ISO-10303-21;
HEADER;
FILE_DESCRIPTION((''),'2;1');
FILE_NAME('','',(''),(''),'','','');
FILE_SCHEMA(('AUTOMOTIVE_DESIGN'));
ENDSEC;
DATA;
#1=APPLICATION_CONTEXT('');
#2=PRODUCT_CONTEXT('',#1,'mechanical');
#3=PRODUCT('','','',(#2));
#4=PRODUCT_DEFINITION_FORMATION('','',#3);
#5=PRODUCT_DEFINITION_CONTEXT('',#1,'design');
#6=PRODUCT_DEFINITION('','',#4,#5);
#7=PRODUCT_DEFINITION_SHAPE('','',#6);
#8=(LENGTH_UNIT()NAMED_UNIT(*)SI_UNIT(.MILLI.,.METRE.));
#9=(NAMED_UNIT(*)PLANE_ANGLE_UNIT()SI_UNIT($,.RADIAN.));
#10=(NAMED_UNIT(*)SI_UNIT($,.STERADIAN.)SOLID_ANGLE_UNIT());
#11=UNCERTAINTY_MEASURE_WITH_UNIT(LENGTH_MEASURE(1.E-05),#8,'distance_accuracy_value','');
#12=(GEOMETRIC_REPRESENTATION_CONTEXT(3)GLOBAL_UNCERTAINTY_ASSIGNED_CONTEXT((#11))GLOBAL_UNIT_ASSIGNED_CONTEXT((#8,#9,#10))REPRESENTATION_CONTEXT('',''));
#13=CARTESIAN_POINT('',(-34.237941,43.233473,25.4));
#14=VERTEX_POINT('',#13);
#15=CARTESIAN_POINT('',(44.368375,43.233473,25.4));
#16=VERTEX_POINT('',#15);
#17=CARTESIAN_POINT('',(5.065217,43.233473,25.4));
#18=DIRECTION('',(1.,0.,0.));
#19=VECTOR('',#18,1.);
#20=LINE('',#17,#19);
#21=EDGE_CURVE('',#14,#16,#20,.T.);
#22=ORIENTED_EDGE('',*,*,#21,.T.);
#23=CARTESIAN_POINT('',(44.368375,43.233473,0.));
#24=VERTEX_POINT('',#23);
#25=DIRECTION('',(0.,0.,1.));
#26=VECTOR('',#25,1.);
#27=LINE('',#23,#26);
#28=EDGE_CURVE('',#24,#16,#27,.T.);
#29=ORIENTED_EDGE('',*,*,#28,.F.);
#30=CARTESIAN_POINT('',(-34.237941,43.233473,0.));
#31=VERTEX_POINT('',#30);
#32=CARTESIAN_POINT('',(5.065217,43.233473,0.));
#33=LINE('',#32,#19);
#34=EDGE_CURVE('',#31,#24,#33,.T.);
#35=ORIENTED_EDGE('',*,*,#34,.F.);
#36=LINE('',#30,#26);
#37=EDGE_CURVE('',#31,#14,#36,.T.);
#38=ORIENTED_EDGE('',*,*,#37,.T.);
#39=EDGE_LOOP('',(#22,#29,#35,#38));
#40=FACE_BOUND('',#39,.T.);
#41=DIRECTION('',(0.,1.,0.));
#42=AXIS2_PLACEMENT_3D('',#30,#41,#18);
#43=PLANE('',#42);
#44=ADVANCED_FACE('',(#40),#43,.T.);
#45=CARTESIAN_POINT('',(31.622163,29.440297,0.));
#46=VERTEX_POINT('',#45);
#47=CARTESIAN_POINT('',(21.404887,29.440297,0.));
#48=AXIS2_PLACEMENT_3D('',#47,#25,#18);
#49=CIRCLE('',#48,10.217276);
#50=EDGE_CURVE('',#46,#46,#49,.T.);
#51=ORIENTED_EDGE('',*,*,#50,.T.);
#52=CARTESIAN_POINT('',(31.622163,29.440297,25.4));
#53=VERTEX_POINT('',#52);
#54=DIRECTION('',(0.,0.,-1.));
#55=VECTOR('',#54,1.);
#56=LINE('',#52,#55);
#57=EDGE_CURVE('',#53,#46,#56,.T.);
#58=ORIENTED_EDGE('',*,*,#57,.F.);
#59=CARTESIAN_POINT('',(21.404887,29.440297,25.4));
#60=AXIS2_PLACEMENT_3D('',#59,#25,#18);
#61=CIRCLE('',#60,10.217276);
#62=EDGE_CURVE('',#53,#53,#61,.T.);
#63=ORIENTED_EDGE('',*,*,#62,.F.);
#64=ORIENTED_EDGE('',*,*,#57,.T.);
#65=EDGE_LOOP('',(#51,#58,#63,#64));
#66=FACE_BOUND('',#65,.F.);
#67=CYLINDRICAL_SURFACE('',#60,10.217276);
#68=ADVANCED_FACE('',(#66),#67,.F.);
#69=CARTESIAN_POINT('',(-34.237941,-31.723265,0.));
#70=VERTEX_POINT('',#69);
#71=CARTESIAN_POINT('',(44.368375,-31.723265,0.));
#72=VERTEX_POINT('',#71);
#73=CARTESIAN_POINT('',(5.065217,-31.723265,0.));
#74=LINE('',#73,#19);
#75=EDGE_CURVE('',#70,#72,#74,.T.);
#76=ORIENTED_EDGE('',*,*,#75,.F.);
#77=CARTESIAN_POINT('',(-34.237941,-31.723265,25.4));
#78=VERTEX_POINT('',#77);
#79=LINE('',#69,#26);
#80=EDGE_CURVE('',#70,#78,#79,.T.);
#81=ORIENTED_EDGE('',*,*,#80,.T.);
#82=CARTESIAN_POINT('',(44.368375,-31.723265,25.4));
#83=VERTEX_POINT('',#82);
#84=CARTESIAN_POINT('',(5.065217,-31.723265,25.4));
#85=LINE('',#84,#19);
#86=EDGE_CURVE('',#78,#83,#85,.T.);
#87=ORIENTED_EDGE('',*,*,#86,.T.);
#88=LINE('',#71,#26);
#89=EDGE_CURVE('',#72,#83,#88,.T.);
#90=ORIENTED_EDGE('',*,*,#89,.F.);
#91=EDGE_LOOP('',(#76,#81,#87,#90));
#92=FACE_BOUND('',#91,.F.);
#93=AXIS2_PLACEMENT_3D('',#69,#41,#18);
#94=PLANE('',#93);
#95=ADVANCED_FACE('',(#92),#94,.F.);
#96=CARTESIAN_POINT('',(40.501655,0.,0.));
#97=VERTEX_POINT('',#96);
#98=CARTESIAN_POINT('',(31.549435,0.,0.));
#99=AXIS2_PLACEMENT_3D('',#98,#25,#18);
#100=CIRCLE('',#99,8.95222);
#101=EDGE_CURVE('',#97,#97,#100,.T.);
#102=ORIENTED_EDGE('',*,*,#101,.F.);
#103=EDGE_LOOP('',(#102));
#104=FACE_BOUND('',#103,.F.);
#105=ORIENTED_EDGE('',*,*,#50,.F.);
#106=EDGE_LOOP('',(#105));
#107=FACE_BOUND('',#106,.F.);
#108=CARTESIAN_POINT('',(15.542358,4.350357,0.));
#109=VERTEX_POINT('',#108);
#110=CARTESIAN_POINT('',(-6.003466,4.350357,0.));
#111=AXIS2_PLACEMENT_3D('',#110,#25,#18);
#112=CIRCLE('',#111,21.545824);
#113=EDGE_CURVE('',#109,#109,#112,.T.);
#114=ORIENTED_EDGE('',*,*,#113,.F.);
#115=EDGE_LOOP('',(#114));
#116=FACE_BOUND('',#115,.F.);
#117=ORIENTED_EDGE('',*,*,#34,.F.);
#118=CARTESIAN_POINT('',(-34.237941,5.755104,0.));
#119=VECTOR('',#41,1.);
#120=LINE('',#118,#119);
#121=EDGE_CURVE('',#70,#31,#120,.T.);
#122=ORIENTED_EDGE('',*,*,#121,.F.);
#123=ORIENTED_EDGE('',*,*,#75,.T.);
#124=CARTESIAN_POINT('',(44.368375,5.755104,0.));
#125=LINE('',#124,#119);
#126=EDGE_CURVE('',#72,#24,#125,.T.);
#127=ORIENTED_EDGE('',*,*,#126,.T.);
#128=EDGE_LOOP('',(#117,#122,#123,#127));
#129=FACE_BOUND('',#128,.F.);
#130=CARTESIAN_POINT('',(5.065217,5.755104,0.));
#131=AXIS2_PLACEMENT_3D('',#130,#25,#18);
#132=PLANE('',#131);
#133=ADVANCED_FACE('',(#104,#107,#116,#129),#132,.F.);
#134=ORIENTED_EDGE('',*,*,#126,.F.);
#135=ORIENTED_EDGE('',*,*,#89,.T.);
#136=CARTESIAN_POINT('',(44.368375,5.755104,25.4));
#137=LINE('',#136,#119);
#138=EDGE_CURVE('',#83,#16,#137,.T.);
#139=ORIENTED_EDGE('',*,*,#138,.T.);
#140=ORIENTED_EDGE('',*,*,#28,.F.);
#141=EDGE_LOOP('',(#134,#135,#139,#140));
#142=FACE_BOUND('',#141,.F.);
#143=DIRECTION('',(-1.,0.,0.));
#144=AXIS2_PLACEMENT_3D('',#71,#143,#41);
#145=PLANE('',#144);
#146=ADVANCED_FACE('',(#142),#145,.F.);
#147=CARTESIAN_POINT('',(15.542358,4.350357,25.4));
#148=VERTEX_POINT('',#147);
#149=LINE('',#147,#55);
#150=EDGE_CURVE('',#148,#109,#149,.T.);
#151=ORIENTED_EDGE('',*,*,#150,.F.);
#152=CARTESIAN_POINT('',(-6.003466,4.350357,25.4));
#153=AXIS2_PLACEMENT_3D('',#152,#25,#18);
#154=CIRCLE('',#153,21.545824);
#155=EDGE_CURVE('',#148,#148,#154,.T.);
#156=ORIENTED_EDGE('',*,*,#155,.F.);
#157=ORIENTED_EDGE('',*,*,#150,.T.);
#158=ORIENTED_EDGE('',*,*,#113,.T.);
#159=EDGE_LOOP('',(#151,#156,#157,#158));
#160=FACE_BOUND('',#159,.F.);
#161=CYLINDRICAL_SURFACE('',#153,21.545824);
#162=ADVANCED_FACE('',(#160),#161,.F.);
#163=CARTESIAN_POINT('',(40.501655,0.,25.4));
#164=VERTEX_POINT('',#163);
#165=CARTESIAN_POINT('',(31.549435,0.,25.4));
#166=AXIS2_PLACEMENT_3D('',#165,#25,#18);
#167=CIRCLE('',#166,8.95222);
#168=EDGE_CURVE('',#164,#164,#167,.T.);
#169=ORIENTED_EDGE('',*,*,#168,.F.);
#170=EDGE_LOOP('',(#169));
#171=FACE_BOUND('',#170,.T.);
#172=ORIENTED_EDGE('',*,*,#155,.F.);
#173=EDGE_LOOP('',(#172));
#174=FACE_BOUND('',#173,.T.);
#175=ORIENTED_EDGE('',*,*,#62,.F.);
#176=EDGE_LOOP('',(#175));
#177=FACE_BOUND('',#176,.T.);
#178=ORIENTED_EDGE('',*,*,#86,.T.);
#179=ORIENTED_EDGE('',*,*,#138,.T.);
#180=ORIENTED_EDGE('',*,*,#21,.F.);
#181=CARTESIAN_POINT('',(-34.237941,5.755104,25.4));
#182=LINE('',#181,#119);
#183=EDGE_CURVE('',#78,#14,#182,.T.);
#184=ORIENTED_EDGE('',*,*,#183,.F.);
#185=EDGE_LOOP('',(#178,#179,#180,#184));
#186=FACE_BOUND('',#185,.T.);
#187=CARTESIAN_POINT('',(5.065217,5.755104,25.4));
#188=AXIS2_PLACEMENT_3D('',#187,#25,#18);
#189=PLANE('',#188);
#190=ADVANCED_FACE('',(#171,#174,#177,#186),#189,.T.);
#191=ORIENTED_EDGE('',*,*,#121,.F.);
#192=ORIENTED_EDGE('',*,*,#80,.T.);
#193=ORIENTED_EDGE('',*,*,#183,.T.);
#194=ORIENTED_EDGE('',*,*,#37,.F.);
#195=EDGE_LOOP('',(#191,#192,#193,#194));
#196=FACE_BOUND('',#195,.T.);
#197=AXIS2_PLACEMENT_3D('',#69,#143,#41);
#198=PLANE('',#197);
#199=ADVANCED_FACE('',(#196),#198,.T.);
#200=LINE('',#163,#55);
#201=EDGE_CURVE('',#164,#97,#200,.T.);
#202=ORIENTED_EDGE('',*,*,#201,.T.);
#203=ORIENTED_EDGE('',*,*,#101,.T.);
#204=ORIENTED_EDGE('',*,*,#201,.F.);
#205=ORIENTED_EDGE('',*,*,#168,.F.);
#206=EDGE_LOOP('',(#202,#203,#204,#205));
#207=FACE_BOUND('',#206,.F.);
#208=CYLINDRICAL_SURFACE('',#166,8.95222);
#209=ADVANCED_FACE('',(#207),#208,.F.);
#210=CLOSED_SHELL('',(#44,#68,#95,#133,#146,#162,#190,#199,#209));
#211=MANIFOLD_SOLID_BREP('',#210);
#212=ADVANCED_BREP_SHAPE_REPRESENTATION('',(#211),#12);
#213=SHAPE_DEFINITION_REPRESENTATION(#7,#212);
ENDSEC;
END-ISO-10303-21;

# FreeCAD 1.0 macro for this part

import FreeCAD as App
import Part
import Sketcher
Q = App.Units.Quantity

doc = App.newDocument("Part")
body = doc.addObject("PartDesign::Body", "Body")

# Sketch on XY plane
sketch1 = body.newObject("Sketcher::SketchObject", "Sketch")
sketch1.AttachmentSupport = (doc.getObject("XY_Plane"), [""])
sketch1.MapMode = "FlatFace"
sketch1.addGeometry([
    Part.LineSegment(App.Vector(-34, 43, 0), App.Vector(-34, -32, 0)),
    Part.LineSegment(App.Vector(-34, -32, 0), App.Vector(44, -32, 0)),
    Part.LineSegment(App.Vector(44, -32, 0), App.Vector(44, 43, 0)),
    Part.LineSegment(App.Vector(44, 43, 0), App.Vector(-34, 43, 0)),
], False)
sketch1.addConstraint([
    Sketcher.Constraint("Coincident", 0, 2, 1, 1),
    Sketcher.Constraint("Coincident", 1, 2, 2, 1),
    Sketcher.Constraint("Coincident", 2, 2, 3, 1),
    Sketcher.Constraint("Coincident", 3, 2, 0, 1),
    Sketcher.Constraint("Vertical", 0),
    Sketcher.Constraint("Horizontal", 1),
    Sketcher.Constraint("Vertical", 2),
    Sketcher.Constraint("Horizontal", 3),
    Sketcher.Constraint("DistanceY", 0, 2, 0, 1, Q("74.956738 mm")),
    Sketcher.Constraint("DistanceX", 1, 1, 1, 2, Q("78.606315 mm")),
    Sketcher.Constraint("DistanceX", 0, 2, -1, 1, Q("34.237941 mm")),
    Sketcher.Constraint("DistanceY", 0, 2, -1, 1, Q("31.723265 mm")),
])
pad1 = body.newObject("PartDesign::Pad", "Pad")
pad1.Profile = sketch1
pad1.Length = Q("1 in")

# Sketch on XY plane
sketch2 = body.newObject("Sketcher::SketchObject", "Sketch001")
sketch2.AttachmentSupport = (doc.getObject("XY_Plane"), [""])
sketch2.MapMode = "FlatFace"
sketch2.AttachmentOffset = App.Placement(App.Vector(0, 0, 1 * 25.4), App.Rotation())
sketch2.addGeometry([
    Part.Circle(App.Vector(-6, 4, 0), App.Vector(0, 0, 1), 22),
    Part.Circle(App.Vector(21, 29, 0), App.Vector(0, 0, 1), 10),
    Part.Circle(App.Vector(32, 0, 0), App.Vector(0, 0, 1), 9),
], False)
sketch2.addConstraint([
    Sketcher.Constraint("PointOnObject", 2, 3, -1),
    Sketcher.Constraint("Diameter", 1, Q("20.434552 mm")),
    Sketcher.Constraint("Diameter", 2, Q("17.90444 mm")),
    Sketcher.Constraint("Diameter", 0, Q("43.091648 mm")),
    Sketcher.Constraint("DistanceX", 0, 3, 2, 3, Q("37.552901 mm")),
    Sketcher.Constraint("DistanceY", 0, 3, 1, 3, Q("25.08994 mm")),
    Sketcher.Constraint("DistanceX", 0, 3, -1, 1, Q("6.003466 mm")),
    Sketcher.Constraint("DistanceY", -1, 1, 0, 3, Q("4.350357 mm")),
    Sketcher.Constraint("DistanceX", -1, 1, 1, 3, Q("21.404887 mm")),
])
pocket1 = body.newObject("PartDesign::Pocket", "Pocket")
pocket1.Profile = sketch2
pocket1.Type = "ThroughAll"

doc.recompute()
